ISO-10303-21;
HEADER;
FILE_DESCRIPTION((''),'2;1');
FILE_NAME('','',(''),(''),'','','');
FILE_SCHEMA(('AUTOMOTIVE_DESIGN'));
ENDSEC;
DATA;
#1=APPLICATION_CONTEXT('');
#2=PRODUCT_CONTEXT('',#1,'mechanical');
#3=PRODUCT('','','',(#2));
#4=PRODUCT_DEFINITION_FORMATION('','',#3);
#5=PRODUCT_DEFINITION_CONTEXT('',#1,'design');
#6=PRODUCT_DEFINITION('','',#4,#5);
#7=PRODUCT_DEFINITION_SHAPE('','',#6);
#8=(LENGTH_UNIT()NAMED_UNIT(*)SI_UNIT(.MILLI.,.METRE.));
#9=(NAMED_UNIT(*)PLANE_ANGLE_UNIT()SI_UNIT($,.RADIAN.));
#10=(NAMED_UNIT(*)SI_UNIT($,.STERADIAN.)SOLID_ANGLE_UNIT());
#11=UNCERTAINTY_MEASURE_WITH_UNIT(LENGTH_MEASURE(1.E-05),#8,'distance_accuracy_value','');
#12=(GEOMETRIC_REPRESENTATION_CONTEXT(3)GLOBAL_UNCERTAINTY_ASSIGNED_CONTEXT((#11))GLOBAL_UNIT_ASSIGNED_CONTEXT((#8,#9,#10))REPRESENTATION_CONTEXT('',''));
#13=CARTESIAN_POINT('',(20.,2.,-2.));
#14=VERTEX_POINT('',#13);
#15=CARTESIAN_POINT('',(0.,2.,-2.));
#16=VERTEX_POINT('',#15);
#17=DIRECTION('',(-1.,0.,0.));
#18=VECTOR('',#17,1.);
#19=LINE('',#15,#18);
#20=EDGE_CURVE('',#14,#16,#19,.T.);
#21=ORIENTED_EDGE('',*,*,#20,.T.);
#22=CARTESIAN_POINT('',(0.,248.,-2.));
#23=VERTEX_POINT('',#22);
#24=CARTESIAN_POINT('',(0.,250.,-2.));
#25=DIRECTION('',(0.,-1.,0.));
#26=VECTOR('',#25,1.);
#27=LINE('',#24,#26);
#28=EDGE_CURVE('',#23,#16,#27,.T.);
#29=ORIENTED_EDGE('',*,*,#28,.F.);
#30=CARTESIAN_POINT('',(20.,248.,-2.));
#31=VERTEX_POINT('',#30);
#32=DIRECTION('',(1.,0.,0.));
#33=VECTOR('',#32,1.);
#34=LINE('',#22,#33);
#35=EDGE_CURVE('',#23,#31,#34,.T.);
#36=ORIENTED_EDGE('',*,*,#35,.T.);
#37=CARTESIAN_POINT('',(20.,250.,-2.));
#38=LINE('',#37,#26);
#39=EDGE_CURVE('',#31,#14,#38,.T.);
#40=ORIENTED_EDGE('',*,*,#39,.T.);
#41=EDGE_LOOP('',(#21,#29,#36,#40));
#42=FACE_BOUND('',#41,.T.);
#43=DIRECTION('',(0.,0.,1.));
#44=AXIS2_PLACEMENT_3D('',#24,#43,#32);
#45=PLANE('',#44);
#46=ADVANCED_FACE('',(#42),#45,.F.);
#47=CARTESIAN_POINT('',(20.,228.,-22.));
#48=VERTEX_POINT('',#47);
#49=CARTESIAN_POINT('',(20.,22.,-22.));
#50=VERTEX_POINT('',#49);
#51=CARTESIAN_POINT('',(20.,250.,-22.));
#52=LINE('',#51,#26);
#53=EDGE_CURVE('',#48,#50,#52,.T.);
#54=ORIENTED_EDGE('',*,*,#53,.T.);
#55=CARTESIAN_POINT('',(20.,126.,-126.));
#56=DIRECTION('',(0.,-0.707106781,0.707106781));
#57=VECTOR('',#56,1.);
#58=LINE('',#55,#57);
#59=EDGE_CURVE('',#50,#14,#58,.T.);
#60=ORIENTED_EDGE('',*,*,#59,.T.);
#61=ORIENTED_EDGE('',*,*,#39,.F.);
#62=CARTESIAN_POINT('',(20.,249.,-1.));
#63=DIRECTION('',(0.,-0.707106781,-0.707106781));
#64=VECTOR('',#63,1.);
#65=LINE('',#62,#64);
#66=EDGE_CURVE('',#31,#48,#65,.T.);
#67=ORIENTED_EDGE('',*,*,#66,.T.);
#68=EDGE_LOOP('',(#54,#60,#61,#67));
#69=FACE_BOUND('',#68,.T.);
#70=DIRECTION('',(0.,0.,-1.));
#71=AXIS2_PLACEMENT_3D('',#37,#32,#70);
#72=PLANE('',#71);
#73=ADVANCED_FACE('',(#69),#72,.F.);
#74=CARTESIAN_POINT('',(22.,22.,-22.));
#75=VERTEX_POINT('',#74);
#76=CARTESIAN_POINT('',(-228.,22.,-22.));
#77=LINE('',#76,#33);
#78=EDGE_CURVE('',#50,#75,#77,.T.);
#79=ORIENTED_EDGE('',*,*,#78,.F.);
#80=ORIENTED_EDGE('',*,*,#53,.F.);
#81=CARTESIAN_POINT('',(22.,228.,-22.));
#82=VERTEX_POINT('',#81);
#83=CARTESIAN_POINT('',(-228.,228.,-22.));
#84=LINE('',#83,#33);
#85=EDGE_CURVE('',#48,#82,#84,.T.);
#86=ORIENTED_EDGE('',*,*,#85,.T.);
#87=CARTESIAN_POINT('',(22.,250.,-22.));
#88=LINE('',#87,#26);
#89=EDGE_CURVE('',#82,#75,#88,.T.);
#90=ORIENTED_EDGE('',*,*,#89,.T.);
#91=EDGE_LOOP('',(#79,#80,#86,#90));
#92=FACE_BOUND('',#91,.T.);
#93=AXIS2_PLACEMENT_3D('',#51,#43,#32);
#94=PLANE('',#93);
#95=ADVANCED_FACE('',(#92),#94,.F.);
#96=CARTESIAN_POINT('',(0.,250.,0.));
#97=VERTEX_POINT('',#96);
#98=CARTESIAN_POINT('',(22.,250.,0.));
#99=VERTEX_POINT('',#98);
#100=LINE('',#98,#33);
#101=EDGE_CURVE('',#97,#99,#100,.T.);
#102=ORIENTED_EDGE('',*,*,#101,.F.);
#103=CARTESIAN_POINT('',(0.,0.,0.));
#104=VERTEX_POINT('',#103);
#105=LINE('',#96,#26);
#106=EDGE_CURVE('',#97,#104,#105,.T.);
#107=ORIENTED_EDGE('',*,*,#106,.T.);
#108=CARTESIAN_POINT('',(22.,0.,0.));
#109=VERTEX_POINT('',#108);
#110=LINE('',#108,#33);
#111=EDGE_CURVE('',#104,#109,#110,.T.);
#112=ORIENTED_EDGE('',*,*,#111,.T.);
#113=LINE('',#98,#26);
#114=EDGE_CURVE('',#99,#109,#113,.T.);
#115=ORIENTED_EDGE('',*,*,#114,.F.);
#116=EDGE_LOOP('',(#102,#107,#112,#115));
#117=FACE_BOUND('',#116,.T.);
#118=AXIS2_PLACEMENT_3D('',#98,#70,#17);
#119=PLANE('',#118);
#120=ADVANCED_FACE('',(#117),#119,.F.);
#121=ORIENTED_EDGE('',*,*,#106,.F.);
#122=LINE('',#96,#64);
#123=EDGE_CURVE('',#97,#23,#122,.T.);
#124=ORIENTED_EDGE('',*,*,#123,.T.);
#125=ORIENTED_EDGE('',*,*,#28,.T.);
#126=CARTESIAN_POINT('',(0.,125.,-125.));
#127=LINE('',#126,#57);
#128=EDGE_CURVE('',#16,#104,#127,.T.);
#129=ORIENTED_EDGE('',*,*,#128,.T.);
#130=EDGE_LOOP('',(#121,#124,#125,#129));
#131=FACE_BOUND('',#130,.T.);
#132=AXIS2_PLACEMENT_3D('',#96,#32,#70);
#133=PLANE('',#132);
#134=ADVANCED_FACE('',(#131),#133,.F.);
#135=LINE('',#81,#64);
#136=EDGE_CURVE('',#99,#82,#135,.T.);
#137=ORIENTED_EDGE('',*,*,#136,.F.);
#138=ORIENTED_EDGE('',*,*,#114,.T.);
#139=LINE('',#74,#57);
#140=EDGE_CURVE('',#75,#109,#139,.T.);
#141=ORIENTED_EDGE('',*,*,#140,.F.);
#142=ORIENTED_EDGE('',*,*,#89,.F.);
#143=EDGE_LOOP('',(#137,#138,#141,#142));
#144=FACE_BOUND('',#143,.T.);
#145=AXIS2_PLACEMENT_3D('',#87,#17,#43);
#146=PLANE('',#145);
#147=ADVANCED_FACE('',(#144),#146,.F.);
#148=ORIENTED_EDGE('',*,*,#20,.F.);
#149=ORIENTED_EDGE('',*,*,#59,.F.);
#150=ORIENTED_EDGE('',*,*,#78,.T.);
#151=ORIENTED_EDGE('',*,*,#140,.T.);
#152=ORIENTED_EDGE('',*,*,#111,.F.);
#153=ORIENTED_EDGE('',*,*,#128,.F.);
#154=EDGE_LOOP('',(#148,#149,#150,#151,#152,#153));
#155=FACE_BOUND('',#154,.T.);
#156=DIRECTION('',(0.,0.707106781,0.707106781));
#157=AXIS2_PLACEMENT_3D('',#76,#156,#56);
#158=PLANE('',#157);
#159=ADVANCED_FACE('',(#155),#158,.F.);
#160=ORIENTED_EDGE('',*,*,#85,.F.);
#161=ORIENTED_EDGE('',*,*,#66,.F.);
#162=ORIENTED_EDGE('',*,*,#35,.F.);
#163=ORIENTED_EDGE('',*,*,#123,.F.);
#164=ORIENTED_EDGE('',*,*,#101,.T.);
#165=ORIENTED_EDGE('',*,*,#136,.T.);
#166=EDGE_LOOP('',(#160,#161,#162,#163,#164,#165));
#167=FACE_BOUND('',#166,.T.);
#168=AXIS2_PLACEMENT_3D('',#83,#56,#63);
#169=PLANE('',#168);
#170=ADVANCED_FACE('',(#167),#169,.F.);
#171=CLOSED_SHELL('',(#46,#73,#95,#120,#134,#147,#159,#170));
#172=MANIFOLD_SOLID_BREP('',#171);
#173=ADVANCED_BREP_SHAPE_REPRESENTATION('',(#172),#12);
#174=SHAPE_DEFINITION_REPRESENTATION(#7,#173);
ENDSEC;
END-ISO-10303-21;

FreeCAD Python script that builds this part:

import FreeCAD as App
import Part
import Sketcher
Q = App.Units.Quantity

doc = App.newDocument("Part")
body = doc.addObject("PartDesign::Body", "Body")

# Sketch on XZ plane
sketch1 = body.newObject("Sketcher::SketchObject", "Sketch")
sketch1.AttachmentSupport = (doc.getObject("XZ_Plane"), [""])
sketch1.MapMode = "FlatFace"
sketch1.addGeometry([
    Part.LineSegment(App.Vector(0, -2, 0), App.Vector(0, 0, 0)),  # 0
    Part.LineSegment(App.Vector(0, 0, 0), App.Vector(22, 0, 0)),  # 1
    Part.LineSegment(App.Vector(22, 0, 0), App.Vector(22, -22, 0)),  # 2
    Part.LineSegment(App.Vector(22, -22, 0), App.Vector(20, -22, 0)),  # 3
    Part.LineSegment(App.Vector(20, -22, 0), App.Vector(20, -2, 0)),  # 4
    Part.LineSegment(App.Vector(20, -2, 0), App.Vector(0, -2, 0)),  # 5
], False)
sketch1.addConstraint([
    Sketcher.Constraint("Coincident", 0, 2, 1, 1),
    Sketcher.Constraint("Coincident", 1, 2, 2, 1),
    Sketcher.Constraint("Coincident", 2, 2, 3, 1),
    Sketcher.Constraint("Coincident", 3, 2, 4, 1),
    Sketcher.Constraint("Coincident", 4, 2, 5, 1),
    Sketcher.Constraint("Coincident", 5, 2, 0, 1),
    Sketcher.Constraint("Vertical", 0),
    Sketcher.Constraint("Horizontal", 1),
    Sketcher.Constraint("Vertical", 2),
    Sketcher.Constraint("Horizontal", 3),
    Sketcher.Constraint("Vertical", 4),
    Sketcher.Constraint("Horizontal", 5),
    Sketcher.Constraint("Coincident", 0, 2, -1, 1),
    Sketcher.Constraint("Equal", 3, 0),
    Sketcher.Constraint("Equal", 1, 2),
    Sketcher.Constraint("DistanceX", 1, 1, 1, 2, Q("22 mm")),
    Sketcher.Constraint("DistanceX", 3, 2, 3, 1, Q("2 mm")),
])
pad1 = body.newObject("PartDesign::Pad", "Pad")
pad1.Profile = sketch1
pad1.Length = 250
pad1.Reversed = True

# Sketch on YZ plane
sketch2 = body.newObject("Sketcher::SketchObject", "Sketch001")
sketch2.AttachmentSupport = (doc.getObject("YZ_Plane"), [""])
sketch2.MapMode = "FlatFace"
sketch2.AttachmentOffset = App.Placement(App.Vector(0, 0, 22), App.Rotation())
sketch2.addGeometry([
    Part.LineSegment(App.Vector(0, 0, 0), App.Vector(0, -22, 0)),  # 0
    Part.LineSegment(App.Vector(0, -22, 0), App.Vector(22, -22, 0)),  # 1
    Part.LineSegment(App.Vector(22, -22, 0), App.Vector(0, 0, 0)),  # 2
    Part.LineSegment(App.Vector(228, -22, 0), App.Vector(250, -22, 0)),  # 3
    Part.LineSegment(App.Vector(250, -22, 0), App.Vector(250, 0, 0)),  # 4
    Part.LineSegment(App.Vector(250, 0, 0), App.Vector(228, -22, 0)),  # 5
], False)
sketch2.addConstraint([
    Sketcher.Constraint("Coincident", 0, 2, 1, 1),
    Sketcher.Constraint("Coincident", 1, 2, 2, 1),
    Sketcher.Constraint("Coincident", 2, 2, 0, 1),
    Sketcher.Constraint("Coincident", 3, 2, 4, 1),
    Sketcher.Constraint("Coincident", 4, 2, 5, 1),
    Sketcher.Constraint("Coincident", 5, 2, 3, 1),
    Sketcher.Constraint("Vertical", 0),
    Sketcher.Constraint("Horizontal", 1),
    Sketcher.Constraint("Horizontal", 3),
    Sketcher.Constraint("Vertical", 4),
    Sketcher.Constraint("Coincident", 2, 2, -1, 1),
    Sketcher.Constraint("PointOnObject", 4, 2, -1),
    Sketcher.Constraint("Perpendicular", 2, 5),
    Sketcher.Constraint("Horizontal", 1, 2, 3, 2),
    Sketcher.Constraint("Equal", 1, 3),
    Sketcher.Constraint("DistanceX", 1, 1, 1, 2, Q("22 mm")),
    Sketcher.Constraint("DistanceX", -1, 1, 3, 2, Q("250 mm")),
])
pocket1 = body.newObject("PartDesign::Pocket", "Pocket")
pocket1.Profile = sketch2
pocket1.Length = 250

doc.recompute()
